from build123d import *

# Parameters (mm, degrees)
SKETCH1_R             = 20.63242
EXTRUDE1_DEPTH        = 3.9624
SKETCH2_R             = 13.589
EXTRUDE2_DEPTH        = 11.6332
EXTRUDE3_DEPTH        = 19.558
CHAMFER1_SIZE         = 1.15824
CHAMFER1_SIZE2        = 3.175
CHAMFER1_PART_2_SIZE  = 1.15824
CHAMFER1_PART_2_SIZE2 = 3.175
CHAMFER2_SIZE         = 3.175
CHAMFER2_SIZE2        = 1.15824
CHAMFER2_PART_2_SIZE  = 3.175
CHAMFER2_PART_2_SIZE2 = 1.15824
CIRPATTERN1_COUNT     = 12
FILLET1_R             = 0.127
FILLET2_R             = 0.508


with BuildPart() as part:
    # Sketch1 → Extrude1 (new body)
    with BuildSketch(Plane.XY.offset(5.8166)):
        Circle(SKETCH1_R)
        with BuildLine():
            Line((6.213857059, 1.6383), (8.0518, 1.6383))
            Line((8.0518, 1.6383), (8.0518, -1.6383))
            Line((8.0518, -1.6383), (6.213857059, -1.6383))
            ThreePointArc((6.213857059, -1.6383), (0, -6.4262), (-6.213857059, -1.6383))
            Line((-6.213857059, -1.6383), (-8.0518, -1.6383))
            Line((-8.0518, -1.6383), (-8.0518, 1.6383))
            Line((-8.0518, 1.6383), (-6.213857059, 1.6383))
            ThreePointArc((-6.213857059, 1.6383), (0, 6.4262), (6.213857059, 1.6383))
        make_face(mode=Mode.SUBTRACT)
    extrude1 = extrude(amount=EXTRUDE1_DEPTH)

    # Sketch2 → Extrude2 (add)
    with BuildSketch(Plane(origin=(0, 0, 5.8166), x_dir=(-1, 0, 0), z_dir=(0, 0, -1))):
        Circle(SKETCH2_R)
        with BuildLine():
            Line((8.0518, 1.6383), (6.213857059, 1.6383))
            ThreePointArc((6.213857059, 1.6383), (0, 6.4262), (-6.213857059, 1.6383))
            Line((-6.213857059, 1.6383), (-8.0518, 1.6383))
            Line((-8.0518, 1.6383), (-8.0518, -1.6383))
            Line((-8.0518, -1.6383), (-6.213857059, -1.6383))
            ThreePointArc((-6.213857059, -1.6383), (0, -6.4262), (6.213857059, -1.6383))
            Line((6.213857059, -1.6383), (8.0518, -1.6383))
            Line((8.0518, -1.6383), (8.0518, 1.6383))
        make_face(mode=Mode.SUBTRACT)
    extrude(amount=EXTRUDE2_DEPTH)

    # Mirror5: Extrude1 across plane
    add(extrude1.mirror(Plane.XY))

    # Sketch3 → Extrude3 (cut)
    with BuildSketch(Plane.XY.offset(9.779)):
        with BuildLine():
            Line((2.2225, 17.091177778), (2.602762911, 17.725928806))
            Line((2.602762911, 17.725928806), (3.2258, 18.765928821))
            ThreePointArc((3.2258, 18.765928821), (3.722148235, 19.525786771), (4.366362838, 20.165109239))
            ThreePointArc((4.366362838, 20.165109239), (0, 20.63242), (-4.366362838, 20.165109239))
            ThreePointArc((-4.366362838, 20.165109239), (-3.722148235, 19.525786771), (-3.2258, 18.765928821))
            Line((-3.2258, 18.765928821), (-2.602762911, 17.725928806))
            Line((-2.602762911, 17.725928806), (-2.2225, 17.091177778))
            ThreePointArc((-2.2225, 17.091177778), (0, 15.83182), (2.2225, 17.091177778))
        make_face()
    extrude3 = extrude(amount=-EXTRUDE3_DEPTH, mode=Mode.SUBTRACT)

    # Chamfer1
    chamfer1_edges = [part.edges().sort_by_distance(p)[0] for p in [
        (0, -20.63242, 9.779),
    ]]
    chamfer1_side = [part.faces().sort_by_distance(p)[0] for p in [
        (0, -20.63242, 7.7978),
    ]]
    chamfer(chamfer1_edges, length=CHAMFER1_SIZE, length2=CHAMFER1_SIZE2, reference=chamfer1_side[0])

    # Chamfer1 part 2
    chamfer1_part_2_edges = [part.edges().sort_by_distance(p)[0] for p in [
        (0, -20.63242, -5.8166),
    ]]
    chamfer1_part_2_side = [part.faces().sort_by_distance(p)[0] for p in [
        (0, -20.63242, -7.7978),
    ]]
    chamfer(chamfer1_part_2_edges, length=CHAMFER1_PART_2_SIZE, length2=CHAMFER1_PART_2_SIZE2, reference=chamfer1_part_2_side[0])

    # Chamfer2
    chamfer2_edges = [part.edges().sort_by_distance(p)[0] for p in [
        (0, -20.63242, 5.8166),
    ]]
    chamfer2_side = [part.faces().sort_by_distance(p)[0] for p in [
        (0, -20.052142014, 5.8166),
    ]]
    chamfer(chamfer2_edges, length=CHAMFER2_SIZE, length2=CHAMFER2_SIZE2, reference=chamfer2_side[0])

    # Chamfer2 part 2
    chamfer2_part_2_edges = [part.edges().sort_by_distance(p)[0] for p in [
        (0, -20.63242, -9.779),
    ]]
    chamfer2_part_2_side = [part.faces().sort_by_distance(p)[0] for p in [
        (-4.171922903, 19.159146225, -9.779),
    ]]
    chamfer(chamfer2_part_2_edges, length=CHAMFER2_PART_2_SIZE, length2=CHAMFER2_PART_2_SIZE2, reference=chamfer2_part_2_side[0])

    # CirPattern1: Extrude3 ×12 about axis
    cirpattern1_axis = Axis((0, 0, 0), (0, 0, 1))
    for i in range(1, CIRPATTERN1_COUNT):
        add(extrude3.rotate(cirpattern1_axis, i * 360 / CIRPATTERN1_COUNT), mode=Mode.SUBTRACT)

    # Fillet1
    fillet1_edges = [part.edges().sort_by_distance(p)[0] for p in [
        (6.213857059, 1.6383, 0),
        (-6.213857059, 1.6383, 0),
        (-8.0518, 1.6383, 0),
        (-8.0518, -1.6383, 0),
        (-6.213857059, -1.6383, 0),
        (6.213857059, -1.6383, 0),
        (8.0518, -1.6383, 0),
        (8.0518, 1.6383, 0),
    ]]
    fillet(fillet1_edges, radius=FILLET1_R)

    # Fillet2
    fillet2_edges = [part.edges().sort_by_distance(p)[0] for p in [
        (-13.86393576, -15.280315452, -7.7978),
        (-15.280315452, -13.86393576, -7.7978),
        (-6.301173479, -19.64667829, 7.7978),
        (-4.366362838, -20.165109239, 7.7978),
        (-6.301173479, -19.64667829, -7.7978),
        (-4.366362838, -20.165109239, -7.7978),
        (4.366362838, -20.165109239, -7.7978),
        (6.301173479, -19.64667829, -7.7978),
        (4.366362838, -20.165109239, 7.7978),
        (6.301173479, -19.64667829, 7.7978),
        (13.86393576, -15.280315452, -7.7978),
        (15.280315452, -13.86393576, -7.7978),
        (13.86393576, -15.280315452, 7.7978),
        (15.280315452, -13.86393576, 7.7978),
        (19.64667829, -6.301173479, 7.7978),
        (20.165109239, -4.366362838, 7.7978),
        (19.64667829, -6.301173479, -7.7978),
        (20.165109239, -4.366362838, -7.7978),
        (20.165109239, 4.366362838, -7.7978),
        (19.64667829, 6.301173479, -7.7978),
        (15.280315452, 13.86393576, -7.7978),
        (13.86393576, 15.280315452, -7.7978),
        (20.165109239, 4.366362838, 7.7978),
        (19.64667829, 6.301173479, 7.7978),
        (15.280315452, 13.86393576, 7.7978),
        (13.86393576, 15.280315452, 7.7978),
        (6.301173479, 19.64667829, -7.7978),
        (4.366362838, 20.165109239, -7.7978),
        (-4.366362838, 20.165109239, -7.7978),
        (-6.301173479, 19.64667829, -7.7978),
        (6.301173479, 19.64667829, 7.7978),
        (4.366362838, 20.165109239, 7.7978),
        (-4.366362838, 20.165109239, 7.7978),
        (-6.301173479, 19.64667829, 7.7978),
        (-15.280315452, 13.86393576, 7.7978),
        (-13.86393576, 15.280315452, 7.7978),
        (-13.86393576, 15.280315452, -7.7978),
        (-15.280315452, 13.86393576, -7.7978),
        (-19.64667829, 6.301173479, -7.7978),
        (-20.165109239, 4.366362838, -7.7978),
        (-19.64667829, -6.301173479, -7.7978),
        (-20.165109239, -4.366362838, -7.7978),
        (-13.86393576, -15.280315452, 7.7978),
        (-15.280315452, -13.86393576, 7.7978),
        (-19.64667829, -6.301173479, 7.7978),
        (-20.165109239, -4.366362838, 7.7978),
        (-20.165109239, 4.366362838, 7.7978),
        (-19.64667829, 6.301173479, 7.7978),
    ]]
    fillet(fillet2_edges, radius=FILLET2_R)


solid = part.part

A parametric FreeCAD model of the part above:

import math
import FreeCAD as App
import Part
import Sketcher
from FreeCAD import Vector
Q = App.Units.Quantity


def edges_at(feature, points):
    """Names of the edges that pass closest to the given points."""
    edges = feature.Shape.Edges
    near = lambda p: min(range(len(edges)), key=lambda i: edges[i].distToShape(Part.Vertex(*p))[0])
    return sorted({f"Edge{near(p) + 1}" for p in points})

doc = App.newDocument("Part")
body = doc.addObject("PartDesign::Body", "Body")

sketch1 = doc.addObject("Sketcher::SketchObject", "Sketch")
body.addObject(sketch1)
sketch1.AttachmentSupport = (doc.XY_Plane, [""])
sketch1.MapMode = "FlatFace"
sketch1.AttachmentOffset = App.Placement(Vector(0, 0, 0.229 * 25.4), App.Rotation())
sketch1.addGeometry([
    Part.Circle(Vector(0, 0, 0), Vector(0, 0, 1), 20.6),
    Part.ArcOfCircle(Part.Circle(Vector(0, 0, 0), Vector(0, 0, 1), 6.4), math.radians(15), math.radians(165)),
    Part.LineSegment(Vector(6.2, 1.6, 0), Vector(8.1, 1.6, 0)),
    Part.LineSegment(Vector(8.1, 1.6, 0), Vector(8.1, -1.6, 0)),
    Part.LineSegment(Vector(8.1, -1.6, 0), Vector(6.2, -1.6, 0)),
    Part.ArcOfCircle(Part.Circle(Vector(0, 0, 0), Vector(0, 0, 1), 6.4), math.radians(-165), math.radians(-15)),
    Part.LineSegment(Vector(-6.2, -1.6, 0), Vector(-8.1, -1.6, 0)),
    Part.LineSegment(Vector(-8.1, -1.6, 0), Vector(-8.1, 1.6, 0)),
    Part.LineSegment(Vector(-8.1, 1.6, 0), Vector(-6.2, 1.6, 0)),
], False)
sketch1.addConstraint([
    Sketcher.Constraint("Coincident", 1, 1, 2, 1),
    Sketcher.Constraint("Coincident", 2, 2, 3, 1),
    Sketcher.Constraint("Coincident", 3, 2, 4, 1),
    Sketcher.Constraint("Coincident", 4, 2, 5, 2),
    Sketcher.Constraint("Coincident", 5, 1, 6, 1),
    Sketcher.Constraint("Coincident", 6, 2, 7, 1),
    Sketcher.Constraint("Coincident", 7, 2, 8, 1),
    Sketcher.Constraint("Coincident", 8, 2, 1, 2),
    Sketcher.Constraint("Horizontal", 2),
    Sketcher.Constraint("Vertical", 3),
    Sketcher.Constraint("Horizontal", 4),
    Sketcher.Constraint("Horizontal", 6),
    Sketcher.Constraint("Vertical", 7),
    Sketcher.Constraint("Horizontal", 8),
    Sketcher.Constraint("Coincident", 0, 3, -1, 1),
    Sketcher.Constraint("Coincident", 1, 3, -1, 1),
    Sketcher.Constraint("Coincident", 5, 3, -1, 1),
    Sketcher.Constraint("Equal", 1, 5),
    Sketcher.Constraint("Symmetric", 2, 2, 6, 2, -1, 1),
    Sketcher.Constraint("Horizontal", 4, 2, 5, 1),
    Sketcher.Constraint("Horizontal", 2, 2, 7, 2),
    Sketcher.Constraint("Radius", 1, Q("0.253 in")),
    Sketcher.Constraint("Diameter", 0, Q("1.6246 in")),
    Sketcher.Constraint("DistanceY", 3, 2, 3, 1, Q("0.129 in")),
    Sketcher.Constraint("DistanceX", -1, 1, 2, 2, Q("0.317 in")),
])
pad1 = doc.addObject("PartDesign::Pad", "Pad")
body.addObject(pad1)
pad1.Profile = sketch1
pad1.Length = Q("0.156 in")

sketch2 = doc.addObject("Sketcher::SketchObject", "Sketch001")
body.addObject(sketch2)
sketch2.AttachmentSupport = (doc.XY_Plane, [""])
sketch2.MapMode = "FlatFace"
sketch2.AttachmentOffset = App.Placement(Vector(0, 0, 0.229 * 25.4), App.Rotation())
sketch2.addGeometry([
    Part.Circle(Vector(0, 0, 0), Vector(0, 0, 1), 13.6),
    Part.LineSegment(Vector(-6.2, 1.6, 0), Vector(-8.1, 1.6, 0)),
    Part.LineSegment(Vector(-8.1, 1.6, 0), Vector(-8.1, -1.6, 0)),
    Part.LineSegment(Vector(-8.1, -1.6, 0), Vector(-6.2, -1.6, 0)),
    Part.ArcOfCircle(Part.Circle(Vector(0, 0, 0), Vector(0, 0, 1), 6.4), math.radians(-165), math.radians(-15)),
    Part.LineSegment(Vector(6.2, -1.6, 0), Vector(8.1, -1.6, 0)),
    Part.LineSegment(Vector(8.1, -1.6, 0), Vector(8.1, 1.6, 0)),
    Part.LineSegment(Vector(8.1, 1.6, 0), Vector(6.2, 1.6, 0)),
    Part.ArcOfCircle(Part.Circle(Vector(0, 0, 0), Vector(0, 0, 1), 6.4), math.radians(15), math.radians(165)),
], False)
sketch2.addConstraint([
    Sketcher.Constraint("Coincident", 1, 2, 2, 1),
    Sketcher.Constraint("Coincident", 2, 2, 3, 1),
    Sketcher.Constraint("Coincident", 3, 2, 4, 1),
    Sketcher.Constraint("Coincident", 4, 2, 5, 1),
    Sketcher.Constraint("Coincident", 5, 2, 6, 1),
    Sketcher.Constraint("Coincident", 6, 2, 7, 1),
    Sketcher.Constraint("Coincident", 7, 2, 8, 1),
    Sketcher.Constraint("Coincident", 8, 2, 1, 1),
    Sketcher.Constraint("Horizontal", 1),
    Sketcher.Constraint("Vertical", 2),
    Sketcher.Constraint("Horizontal", 3),
    Sketcher.Constraint("Horizontal", 5),
    Sketcher.Constraint("Vertical", 6),
    Sketcher.Constraint("Horizontal", 7),
    Sketcher.Constraint("Coincident", 0, 3, -1, 1),
    Sketcher.Constraint("Coincident", 4, 3, -1, 1),
    Sketcher.Constraint("Coincident", 8, 3, -1, 1),
    Sketcher.Constraint("Equal", 4, 8),
    Sketcher.Constraint("Symmetric", 1, 2, 5, 2, -1, 1),
    Sketcher.Constraint("Horizontal", 3, 2, 4, 2),
    Sketcher.Constraint("Horizontal", 1, 2, 6, 2),
    Sketcher.Constraint("Diameter", 0, Q("1.07 in")),
    Sketcher.Constraint("Radius", 4, Q("0.253 in")),
    Sketcher.Constraint("DistanceY", 2, 2, 2, 1, Q("0.129 in")),
    Sketcher.Constraint("DistanceX", 1, 2, -1, 1, Q("0.317 in")),
])
pad2 = doc.addObject("PartDesign::Pad", "Pad001")
body.addObject(pad2)
pad2.Profile = sketch2
pad2.Length = Q("0.458 in")
pad2.Reversed = True
doc.recompute()

mirrored = doc.addObject("PartDesign::Mirrored", "Mirrored")
body.addObject(mirrored)
mirrored.Originals = [pad1]
mirrored.MirrorPlane = (doc.XY_Plane, [""])
body.Tip = mirrored

sketch3 = doc.addObject("Sketcher::SketchObject", "Sketch002")
body.addObject(sketch3)
sketch3.AttachmentSupport = (doc.XY_Plane, [""])
sketch3.MapMode = "FlatFace"
sketch3.AttachmentOffset = App.Placement(Vector(0, 0, 0.385 * 25.4), App.Rotation())
sketch3.addGeometry([
    Part.LineSegment(Vector(2.2, 17.1, 0), Vector(2.6, 17.7, 0)),
    Part.LineSegment(Vector(2.6, 17.7, 0), Vector(3.2, 18.8, 0)),
    Part.ArcOfCircle(Part.Circle(Vector(7.1, 16.8, 0), Vector(0, 0, 1), 4.3), math.radians(129), math.radians(153)),
    Part.ArcOfCircle(Part.Circle(Vector(0, 0, 0), Vector(0, 0, 1), 20.6), math.radians(78), math.radians(102)),
    Part.ArcOfCircle(Part.Circle(Vector(-7.1, 16.8, 0), Vector(0, 0, 1), 4.3), math.radians(27), math.radians(51)),
    Part.LineSegment(Vector(-3.2, 18.8, 0), Vector(-2.6, 17.7, 0)),
    Part.LineSegment(Vector(-2.6, 17.7, 0), Vector(-2.2, 17.1, 0)),
    Part.ArcOfCircle(Part.Circle(Vector(0, 18.4, 0), Vector(0, 0, 1), 2.6), math.radians(-149), math.radians(-31)),
], False)
sketch3.addConstraint([
    Sketcher.Constraint("Coincident", 0, 2, 1, 1),
    Sketcher.Constraint("Coincident", 1, 2, 2, 2),
    Sketcher.Constraint("Coincident", 2, 1, 3, 1),
    Sketcher.Constraint("Coincident", 3, 2, 4, 2),
    Sketcher.Constraint("Coincident", 4, 1, 5, 1),
    Sketcher.Constraint("Coincident", 5, 2, 6, 1),
    Sketcher.Constraint("Tangent", 6, 2, 7, 1),
    Sketcher.Constraint("Tangent", 7, 2, 0, 1),
    Sketcher.Constraint("Coincident", 3, 3, -1, 1),
    Sketcher.Constraint("Equal", 2, 4),
    Sketcher.Constraint("Symmetric", 2, 3, 4, 3, -2),
    Sketcher.Constraint("Symmetric", 0, 2, 5, 2, -2),
    Sketcher.Constraint("PointOnObject", 7, 3, -2),
    Sketcher.Constraint("Parallel", 0, 1),
    Sketcher.Constraint("Parallel", 5, 6),
    Sketcher.Constraint("Radius", 2, Q("0.17 in")),
    Sketcher.Constraint("Radius", 7, Q("0.102 in")),
    Sketcher.Constraint("Radius", 3, Q("0.8123 in")),
    Sketcher.Constraint("DistanceX", -1, 1, 1, 2, Q("0.127 in")),
    Sketcher.Constraint("DistanceX", 6, 2, 7, 2, Q("0.175 in")),
    Sketcher.Constraint("DistanceY", -1, 1, 7, 3, Q("0.7253 in")),
    Sketcher.Constraint("DistanceY", 2, 3, 7, 3, Q("1.625101 mm")),
    Sketcher.Constraint("DistanceX", 4, 3, 0, 2, Q("9.671802 mm")),
])
pocket1 = doc.addObject("PartDesign::Pocket", "Pocket")
body.addObject(pocket1)
pocket1.Profile = sketch3
pocket1.Length = Q("0.77 in")
doc.recompute()

chamfer = doc.addObject("PartDesign::Chamfer", "Chamfer")
body.addObject(chamfer)
chamfer.Base = (pocket1, edges_at(pocket1, [(0, -20.632, 9.779)]))
chamfer.ChamferType = "Two distances"
chamfer.Size = Q("0.0456 in")
chamfer.Size2 = Q("0.125 in")
chamfer.FlipDirection = True
doc.recompute()

chamfer2 = doc.addObject("PartDesign::Chamfer", "Chamfer001")
body.addObject(chamfer2)
chamfer2.Base = (chamfer, edges_at(chamfer, [(0, -20.632, -5.817)]))
chamfer2.ChamferType = "Two distances"
chamfer2.Size = Q("0.0456 in")
chamfer2.Size2 = Q("0.125 in")
chamfer2.FlipDirection = True
doc.recompute()

chamfer3 = doc.addObject("PartDesign::Chamfer", "Chamfer002")
body.addObject(chamfer3)
chamfer3.Base = (chamfer2, edges_at(chamfer2, [(0, -20.632, 5.817)]))
chamfer3.ChamferType = "Two distances"
chamfer3.Size = Q("0.125 in")
chamfer3.Size2 = Q("0.0456 in")
doc.recompute()

chamfer4 = doc.addObject("PartDesign::Chamfer", "Chamfer003")
body.addObject(chamfer4)
chamfer4.Base = (chamfer3, edges_at(chamfer3, [(0, -20.632, -9.779)]))
chamfer4.ChamferType = "Two distances"
chamfer4.Size = Q("0.125 in")
chamfer4.Size2 = Q("0.0456 in")
doc.recompute()

polarpattern = doc.addObject("PartDesign::PolarPattern", "PolarPattern")
body.addObject(polarpattern)
polarpattern.Originals = [pocket1]
polarpattern.Axis = (doc.Z_Axis, [""])
polarpattern.Angle = 360
polarpattern.Occurrences = 12
body.Tip = polarpattern
doc.recompute()

fillet = doc.addObject("PartDesign::Fillet", "Fillet")
body.addObject(fillet)
fillet.Base = (polarpattern, edges_at(polarpattern, [
    (6.214, 1.638, 0),
    (-6.214, 1.638, 0),
    (-8.052, 1.638, 0),
    (-8.052, -1.638, 0),
    (-6.214, -1.638, 0),
    (6.214, -1.638, 0),
    (8.052, -1.638, 0),
    (8.052, 1.638, 0),
]))
fillet.Radius = Q("0.005 in")
doc.recompute()

fillet2 = doc.addObject("PartDesign::Fillet", "Fillet001")
body.addObject(fillet2)
fillet2.Base = (fillet, edges_at(fillet, [
    (-13.864, -15.28, -7.798),
    (-15.28, -13.864, -7.798),
    (-6.301, -19.647, 7.798),
    (-4.366, -20.165, 7.798),
    (-6.301, -19.647, -7.798),
    (-4.366, -20.165, -7.798),
    (4.366, -20.165, -7.798),
    (6.301, -19.647, -7.798),
    (4.366, -20.165, 7.798),
    (6.301, -19.647, 7.798),
    (13.864, -15.28, -7.798),
    (15.28, -13.864, -7.798),
    (13.864, -15.28, 7.798),
    (15.28, -13.864, 7.798),
    (19.647, -6.301, 7.798),
    (20.165, -4.366, 7.798),
    (19.647, -6.301, -7.798),
    (20.165, -4.366, -7.798),
    (20.165, 4.366, -7.798),
    (19.647, 6.301, -7.798),
    (15.28, 13.864, -7.798),
    (13.864, 15.28, -7.798),
    (20.165, 4.366, 7.798),
    (19.647, 6.301, 7.798),
    (15.28, 13.864, 7.798),
    (13.864, 15.28, 7.798),
    (6.301, 19.647, -7.798),
    (4.366, 20.165, -7.798),
    (-4.366, 20.165, -7.798),
    (-6.301, 19.647, -7.798),
    (6.301, 19.647, 7.798),
    (4.366, 20.165, 7.798),
    (-4.366, 20.165, 7.798),
    (-6.301, 19.647, 7.798),
    (-15.28, 13.864, 7.798),
    (-13.864, 15.28, 7.798),
    (-13.864, 15.28, -7.798),
    (-15.28, 13.864, -7.798),
    (-19.647, 6.301, -7.798),
    (-20.165, 4.366, -7.798),
    (-19.647, -6.301, -7.798),
    (-20.165, -4.366, -7.798),
    (-13.864, -15.28, 7.798),
    (-15.28, -13.864, 7.798),
    (-19.647, -6.301, 7.798),
    (-20.165, -4.366, 7.798),
    (-20.165, 4.366, 7.798),
    (-19.647, 6.301, 7.798),
]))
fillet2.Radius = Q("0.02 in")

doc.recompute()
